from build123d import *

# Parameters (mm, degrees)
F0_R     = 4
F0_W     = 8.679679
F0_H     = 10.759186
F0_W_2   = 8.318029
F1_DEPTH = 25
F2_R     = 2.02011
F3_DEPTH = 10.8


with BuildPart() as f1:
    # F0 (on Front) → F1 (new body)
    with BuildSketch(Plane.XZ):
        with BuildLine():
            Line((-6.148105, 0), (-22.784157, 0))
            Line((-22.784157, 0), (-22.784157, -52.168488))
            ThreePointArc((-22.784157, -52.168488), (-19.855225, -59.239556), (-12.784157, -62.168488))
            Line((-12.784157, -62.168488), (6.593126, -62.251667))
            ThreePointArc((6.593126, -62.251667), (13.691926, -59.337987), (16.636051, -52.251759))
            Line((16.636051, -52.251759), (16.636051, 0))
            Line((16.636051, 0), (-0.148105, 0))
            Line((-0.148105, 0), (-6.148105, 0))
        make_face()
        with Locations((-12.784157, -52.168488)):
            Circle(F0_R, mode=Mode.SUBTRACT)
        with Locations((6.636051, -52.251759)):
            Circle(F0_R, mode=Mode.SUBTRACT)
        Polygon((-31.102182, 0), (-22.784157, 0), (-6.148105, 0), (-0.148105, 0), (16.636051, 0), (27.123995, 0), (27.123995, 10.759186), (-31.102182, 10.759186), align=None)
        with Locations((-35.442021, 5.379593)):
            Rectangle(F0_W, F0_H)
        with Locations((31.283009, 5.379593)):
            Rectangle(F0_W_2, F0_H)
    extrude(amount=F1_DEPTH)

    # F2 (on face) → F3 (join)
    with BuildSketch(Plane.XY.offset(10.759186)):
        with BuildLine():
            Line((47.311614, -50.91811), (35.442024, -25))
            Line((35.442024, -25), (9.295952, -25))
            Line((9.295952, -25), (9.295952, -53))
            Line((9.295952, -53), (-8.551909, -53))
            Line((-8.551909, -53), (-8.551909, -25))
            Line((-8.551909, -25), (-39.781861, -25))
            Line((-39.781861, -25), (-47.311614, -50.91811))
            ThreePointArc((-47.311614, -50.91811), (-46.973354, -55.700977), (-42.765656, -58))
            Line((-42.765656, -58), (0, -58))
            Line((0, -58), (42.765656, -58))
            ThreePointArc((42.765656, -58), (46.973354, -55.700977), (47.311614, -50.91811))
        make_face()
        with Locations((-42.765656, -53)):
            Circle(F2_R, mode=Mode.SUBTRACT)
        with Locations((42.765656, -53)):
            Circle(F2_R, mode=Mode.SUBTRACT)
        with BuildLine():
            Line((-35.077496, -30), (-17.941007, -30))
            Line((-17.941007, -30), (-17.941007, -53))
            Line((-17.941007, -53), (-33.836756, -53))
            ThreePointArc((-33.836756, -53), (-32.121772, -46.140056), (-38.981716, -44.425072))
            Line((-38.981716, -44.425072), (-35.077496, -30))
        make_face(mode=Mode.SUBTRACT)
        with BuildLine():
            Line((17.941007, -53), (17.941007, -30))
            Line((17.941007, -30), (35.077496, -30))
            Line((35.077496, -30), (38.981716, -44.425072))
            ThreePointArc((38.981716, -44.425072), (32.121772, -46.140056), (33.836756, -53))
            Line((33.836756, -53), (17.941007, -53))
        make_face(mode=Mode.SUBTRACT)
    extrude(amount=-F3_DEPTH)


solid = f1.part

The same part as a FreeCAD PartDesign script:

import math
import FreeCAD as App
import Part
import Sketcher

V = App.Vector

doc = App.newDocument("Part")
body = doc.addObject("PartDesign::Body", "Body")

# Sketch on XZ plane
sketch1 = body.newObject("Sketcher::SketchObject", "Sketch")
sketch1.AttachmentSupport = (doc.getObject("XZ_Plane"), [""])
sketch1.MapMode = "FlatFace"
sketch1.addGeometry(Part.LineSegment(V(-39.8, 0, 0), V(-22.8, 0, 0)), False)
sketch1.addGeometry(Part.LineSegment(V(-22.8, 0, 0), V(-22.8, -52.2, 0)), False)
sketch1.addGeometry(Part.ArcOfCircle(Part.Circle(V(-12.8, -52.2, 0), V(0, 0, 1), 10), math.radians(180), math.radians(270)), False)
sketch1.addGeometry(Part.LineSegment(V(-12.8, -62.2, 0), V(6.6, -62.3, 0)), False)
sketch1.addGeometry(Part.ArcOfCircle(Part.Circle(V(6.6, -52.3, 0), V(0, 0, 1), 10), math.radians(-90), math.radians(0)), False)
sketch1.addGeometry(Part.LineSegment(V(16.6, -52.3, 0), V(16.6, 0, 0)), False)
sketch1.addGeometry(Part.LineSegment(V(16.6, 0, 0), V(35.4, 0, 0)), False)
sketch1.addGeometry(Part.LineSegment(V(35.4, 0, 0), V(35.4, 10.8, 0)), False)
sketch1.addGeometry(Part.LineSegment(V(35.4, 10.8, 0), V(-39.8, 10.8, 0)), False)
sketch1.addGeometry(Part.LineSegment(V(-39.8, 10.8, 0), V(-39.8, 0, 0)), False)
sketch1.addGeometry(Part.Circle(V(6.6, -52.3, 0), V(0, 0, 1), 4), False)
sketch1.addGeometry(Part.Circle(V(-12.8, -52.2, 0), V(0, 0, 1), 4), False)
sketch1.addConstraint(Sketcher.Constraint("Coincident", 0, 2, 1, 1))
sketch1.addConstraint(Sketcher.Constraint("Tangent", 1, 2, 2, 1))
sketch1.addConstraint(Sketcher.Constraint("Coincident", 2, 2, 3, 1))
sketch1.addConstraint(Sketcher.Constraint("Tangent", 3, 2, 4, 1))
sketch1.addConstraint(Sketcher.Constraint("Tangent", 4, 2, 5, 1))
sketch1.addConstraint(Sketcher.Constraint("Coincident", 5, 2, 6, 1))
sketch1.addConstraint(Sketcher.Constraint("Coincident", 6, 2, 7, 1))
sketch1.addConstraint(Sketcher.Constraint("Coincident", 7, 2, 8, 1))
sketch1.addConstraint(Sketcher.Constraint("Coincident", 8, 2, 9, 1))
sketch1.addConstraint(Sketcher.Constraint("Coincident", 9, 2, 0, 1))
sketch1.addConstraint(Sketcher.Constraint("Horizontal", 0))
sketch1.addConstraint(Sketcher.Constraint("Vertical", 1))
sketch1.addConstraint(Sketcher.Constraint("Vertical", 5))
sketch1.addConstraint(Sketcher.Constraint("Horizontal", 6))
sketch1.addConstraint(Sketcher.Constraint("Vertical", 7))
sketch1.addConstraint(Sketcher.Constraint("Horizontal", 8))
sketch1.addConstraint(Sketcher.Constraint("Vertical", 9))
sketch1.addConstraint(Sketcher.Constraint("Coincident", 10, 3, 4, 3))
sketch1.addConstraint(Sketcher.Constraint("Coincident", 11, 3, 2, 3))
sketch1.addConstraint(Sketcher.Constraint("Equal", 2, 4))
sketch1.addConstraint(Sketcher.Constraint("Equal", 10, 11))
sketch1.addConstraint(Sketcher.Constraint("PointOnObject", 0, 2, -1))
sketch1.addConstraint(Sketcher.Constraint("PointOnObject", 5, 2, -1))
sketch1.addConstraint(Sketcher.Constraint("Vertical", 11, 3, 2, 2))
sketch1.addConstraint(Sketcher.Constraint("Diameter", 10, 8.0))
sketch1.addConstraint(Sketcher.Constraint("Radius", 2, 9.999999))
sketch1.addConstraint(Sketcher.Constraint("DistanceY", 1, 2, 1, 1, 52.168488))
sketch1.addConstraint(Sketcher.Constraint("DistanceY", 5, 1, 5, 2, 52.251759))
sketch1.addConstraint(Sketcher.Constraint("Distance", 3, 19.377462))
sketch1.addConstraint(Sketcher.Constraint("DistanceX", 0, 1, 0, 2, 16.997704))
sketch1.addConstraint(Sketcher.Constraint("DistanceX", 6, 1, 6, 2, 18.805972))
sketch1.addConstraint(Sketcher.Constraint("DistanceY", 7, 1, 7, 2, 10.759186))
sketch1.addConstraint(Sketcher.Constraint("DistanceX", -1, 1, 4, 3, 6.636051))
pad1 = body.newObject("PartDesign::Pad", "Pad")
pad1.Profile = sketch1
pad1.Length = 25

# Sketch on XY plane
sketch2 = body.newObject("Sketcher::SketchObject", "Sketch001")
sketch2.AttachmentSupport = (doc.getObject("XY_Plane"), [""])
sketch2.MapMode = "FlatFace"
sketch2.AttachmentOffset = App.Placement(V(0, 0, 10.759186), App.Rotation())
sketch2.addGeometry(Part.LineSegment(V(47.3, -50.9, 0), V(35.4, -25, 0)), False)
sketch2.addGeometry(Part.LineSegment(V(35.4, -25, 0), V(9.3, -25, 0)), False)
sketch2.addGeometry(Part.LineSegment(V(9.3, -25, 0), V(9.3, -53, 0)), False)
sketch2.addGeometry(Part.LineSegment(V(9.3, -53, 0), V(-8.6, -53, 0)), False)
sketch2.addGeometry(Part.LineSegment(V(-8.6, -53, 0), V(-8.6, -25, 0)), False)
sketch2.addGeometry(Part.LineSegment(V(-8.6, -25, 0), V(-39.8, -25, 0)), False)
sketch2.addGeometry(Part.LineSegment(V(-39.8, -25, 0), V(-47.3, -50.9, 0)), False)
sketch2.addGeometry(Part.ArcOfCircle(Part.Circle(V(-42.8, -53, 0), V(0, 0, 1), 5), math.radians(155), math.radians(270)), False)
sketch2.addGeometry(Part.LineSegment(V(-42.8, -58, 0), V(42.8, -58, 0)), False)
sketch2.addGeometry(Part.ArcOfCircle(Part.Circle(V(42.8, -53, 0), V(0, 0, 1), 5), math.radians(-90), math.radians(25)), False)
sketch2.addGeometry(Part.Circle(V(-42.8, -53, 0), V(0, 0, 1), 2), False)
sketch2.addGeometry(Part.Circle(V(42.8, -53, 0), V(0, 0, 1), 2), False)
sketch2.addGeometry(Part.LineSegment(V(-39, -44.4, 0), V(-35.1, -30, 0)), False)
sketch2.addGeometry(Part.LineSegment(V(-35.1, -30, 0), V(-17.9, -30, 0)), False)
sketch2.addGeometry(Part.LineSegment(V(-17.9, -30, 0), V(-17.9, -53, 0)), False)
sketch2.addGeometry(Part.LineSegment(V(-17.9, -53, 0), V(-33.8, -53, 0)), False)
sketch2.addGeometry(Part.ArcOfCircle(Part.Circle(V(-36.4, -48.7, 0), V(0, 0, 1), 5), math.radians(-59), math.radians(121)), False)
sketch2.addGeometry(Part.LineSegment(V(33.8, -53, 0), V(17.9, -53, 0)), False)
sketch2.addGeometry(Part.LineSegment(V(17.9, -53, 0), V(17.9, -30, 0)), False)
sketch2.addGeometry(Part.LineSegment(V(17.9, -30, 0), V(35.1, -30, 0)), False)
sketch2.addGeometry(Part.LineSegment(V(35.1, -30, 0), V(39, -44.4, 0)), False)
sketch2.addGeometry(Part.ArcOfCircle(Part.Circle(V(36.4, -48.7, 0), V(0, 0, 1), 5), math.radians(59), math.radians(239)), False)
sketch2.addConstraint(Sketcher.Constraint("Coincident", 0, 2, 1, 1))
sketch2.addConstraint(Sketcher.Constraint("Coincident", 1, 2, 2, 1))
sketch2.addConstraint(Sketcher.Constraint("Coincident", 2, 2, 3, 1))
sketch2.addConstraint(Sketcher.Constraint("Coincident", 3, 2, 4, 1))
sketch2.addConstraint(Sketcher.Constraint("Coincident", 4, 2, 5, 1))
sketch2.addConstraint(Sketcher.Constraint("Coincident", 5, 2, 6, 1))
sketch2.addConstraint(Sketcher.Constraint("Coincident", 6, 2, 7, 1))
sketch2.addConstraint(Sketcher.Constraint("Tangent", 7, 2, 8, 1))
sketch2.addConstraint(Sketcher.Constraint("Tangent", 8, 2, 9, 1))
sketch2.addConstraint(Sketcher.Constraint("Tangent", 9, 2, 0, 1))
sketch2.addConstraint(Sketcher.Constraint("Coincident", 12, 2, 13, 1))
sketch2.addConstraint(Sketcher.Constraint("Coincident", 13, 2, 14, 1))
sketch2.addConstraint(Sketcher.Constraint("Coincident", 14, 2, 15, 1))
sketch2.addConstraint(Sketcher.Constraint("Coincident", 15, 2, 16, 1))
sketch2.addConstraint(Sketcher.Constraint("Coincident", 16, 2, 12, 1))
sketch2.addConstraint(Sketcher.Constraint("Coincident", 17, 2, 18, 1))
sketch2.addConstraint(Sketcher.Constraint("Coincident", 18, 2, 19, 1))
sketch2.addConstraint(Sketcher.Constraint("Coincident", 19, 2, 20, 1))
sketch2.addConstraint(Sketcher.Constraint("Coincident", 20, 2, 21, 1))
sketch2.addConstraint(Sketcher.Constraint("Coincident", 21, 2, 17, 1))
sketch2.addConstraint(Sketcher.Constraint("Horizontal", 1))
sketch2.addConstraint(Sketcher.Constraint("Vertical", 2))
sketch2.addConstraint(Sketcher.Constraint("Horizontal", 3))
sketch2.addConstraint(Sketcher.Constraint("Vertical", 4))
sketch2.addConstraint(Sketcher.Constraint("Horizontal", 5))
sketch2.addConstraint(Sketcher.Constraint("Horizontal", 8))
sketch2.addConstraint(Sketcher.Constraint("Horizontal", 13))
sketch2.addConstraint(Sketcher.Constraint("Vertical", 14))
sketch2.addConstraint(Sketcher.Constraint("Horizontal", 15))
sketch2.addConstraint(Sketcher.Constraint("Horizontal", 17))
sketch2.addConstraint(Sketcher.Constraint("Vertical", 18))
sketch2.addConstraint(Sketcher.Constraint("Horizontal", 19))
sketch2.addConstraint(Sketcher.Constraint("Coincident", 10, 3, 7, 3))
sketch2.addConstraint(Sketcher.Constraint("Coincident", 11, 3, 9, 3))
sketch2.addConstraint(Sketcher.Constraint("Equal", 7, 9))
sketch2.addConstraint(Sketcher.Constraint("Equal", 10, 11))
sketch2.addConstraint(Sketcher.Constraint("Equal", 9, 16))
sketch2.addConstraint(Sketcher.Constraint("Equal", 16, 21))
sketch2.addConstraint(Sketcher.Constraint("Symmetric", 16, 3, 21, 3, -2))
sketch2.addConstraint(Sketcher.Constraint("Symmetric", 6, 2, 9, 2, -2))
sketch2.addConstraint(Sketcher.Constraint("Symmetric", 14, 2, 17, 2, -2))
sketch2.addConstraint(Sketcher.Constraint("Symmetric", 12, 2, 19, 2, -2))
sketch2.addConstraint(Sketcher.Constraint("Horizontal", 11, 3, 2, 2))
sketch2.addConstraint(Sketcher.Constraint("Horizontal", 1, 2, 4, 2))
sketch2.addConstraint(Sketcher.Constraint("Horizontal", 3, 2, 14, 2))
sketch2.addConstraint(Sketcher.Constraint("Horizontal", 16, 2, 20, 2))
sketch2.addConstraint(Sketcher.Constraint("Radius", 7, 5.0))
sketch2.addConstraint(Sketcher.Constraint("DistanceY", 2, 2, 2, 1, 28.0))
sketch2.addConstraint(Sketcher.Constraint("DistanceY", 14, 2, 14, 1, 23.0))
sketch2.addConstraint(Sketcher.Constraint("DistanceY", 7, 3, -1, 1, 53.0))
sketch2.addConstraint(Sketcher.Constraint("Diameter", 10, 4.04022))
sketch2.addConstraint(Sketcher.Constraint("DistanceX", 3, 2, 3, 1, 17.847861))
sketch2.addConstraint(Sketcher.Constraint("DistanceX", 5, 2, 5, 1, 31.229952))
sketch2.addConstraint(Sketcher.Constraint("DistanceX", 8, 1, 8, 2, 85.531312))
sketch2.addConstraint(Sketcher.Constraint("DistanceX", 13, 1, 13, 2, 17.136489))
sketch2.addConstraint(Sketcher.Constraint("DistanceX", 15, 2, 15, 1, 15.895749))
sketch2.addConstraint(Sketcher.Constraint("DistanceX", 7, 3, 15, 2, 8.9289))
sketch2.addConstraint(Sketcher.Constraint("DistanceX", 6, 2, 16, 2, 8.329898))
sketch2.addConstraint(Sketcher.Constraint("Distance", 6, 26.989731))
sketch2.addConstraint(Sketcher.Constraint("DistanceX", 1, 2, 1, 1, 26.146072))
sketch2.addConstraint(Sketcher.Constraint("DistanceX", 7, 3, 16, 3, 6.35642))
pad2 = body.newObject("PartDesign::Pad", "Pad001")
pad2.Profile = sketch2
pad2.Length = 10.8
pad2.Reversed = True

doc.recompute()
